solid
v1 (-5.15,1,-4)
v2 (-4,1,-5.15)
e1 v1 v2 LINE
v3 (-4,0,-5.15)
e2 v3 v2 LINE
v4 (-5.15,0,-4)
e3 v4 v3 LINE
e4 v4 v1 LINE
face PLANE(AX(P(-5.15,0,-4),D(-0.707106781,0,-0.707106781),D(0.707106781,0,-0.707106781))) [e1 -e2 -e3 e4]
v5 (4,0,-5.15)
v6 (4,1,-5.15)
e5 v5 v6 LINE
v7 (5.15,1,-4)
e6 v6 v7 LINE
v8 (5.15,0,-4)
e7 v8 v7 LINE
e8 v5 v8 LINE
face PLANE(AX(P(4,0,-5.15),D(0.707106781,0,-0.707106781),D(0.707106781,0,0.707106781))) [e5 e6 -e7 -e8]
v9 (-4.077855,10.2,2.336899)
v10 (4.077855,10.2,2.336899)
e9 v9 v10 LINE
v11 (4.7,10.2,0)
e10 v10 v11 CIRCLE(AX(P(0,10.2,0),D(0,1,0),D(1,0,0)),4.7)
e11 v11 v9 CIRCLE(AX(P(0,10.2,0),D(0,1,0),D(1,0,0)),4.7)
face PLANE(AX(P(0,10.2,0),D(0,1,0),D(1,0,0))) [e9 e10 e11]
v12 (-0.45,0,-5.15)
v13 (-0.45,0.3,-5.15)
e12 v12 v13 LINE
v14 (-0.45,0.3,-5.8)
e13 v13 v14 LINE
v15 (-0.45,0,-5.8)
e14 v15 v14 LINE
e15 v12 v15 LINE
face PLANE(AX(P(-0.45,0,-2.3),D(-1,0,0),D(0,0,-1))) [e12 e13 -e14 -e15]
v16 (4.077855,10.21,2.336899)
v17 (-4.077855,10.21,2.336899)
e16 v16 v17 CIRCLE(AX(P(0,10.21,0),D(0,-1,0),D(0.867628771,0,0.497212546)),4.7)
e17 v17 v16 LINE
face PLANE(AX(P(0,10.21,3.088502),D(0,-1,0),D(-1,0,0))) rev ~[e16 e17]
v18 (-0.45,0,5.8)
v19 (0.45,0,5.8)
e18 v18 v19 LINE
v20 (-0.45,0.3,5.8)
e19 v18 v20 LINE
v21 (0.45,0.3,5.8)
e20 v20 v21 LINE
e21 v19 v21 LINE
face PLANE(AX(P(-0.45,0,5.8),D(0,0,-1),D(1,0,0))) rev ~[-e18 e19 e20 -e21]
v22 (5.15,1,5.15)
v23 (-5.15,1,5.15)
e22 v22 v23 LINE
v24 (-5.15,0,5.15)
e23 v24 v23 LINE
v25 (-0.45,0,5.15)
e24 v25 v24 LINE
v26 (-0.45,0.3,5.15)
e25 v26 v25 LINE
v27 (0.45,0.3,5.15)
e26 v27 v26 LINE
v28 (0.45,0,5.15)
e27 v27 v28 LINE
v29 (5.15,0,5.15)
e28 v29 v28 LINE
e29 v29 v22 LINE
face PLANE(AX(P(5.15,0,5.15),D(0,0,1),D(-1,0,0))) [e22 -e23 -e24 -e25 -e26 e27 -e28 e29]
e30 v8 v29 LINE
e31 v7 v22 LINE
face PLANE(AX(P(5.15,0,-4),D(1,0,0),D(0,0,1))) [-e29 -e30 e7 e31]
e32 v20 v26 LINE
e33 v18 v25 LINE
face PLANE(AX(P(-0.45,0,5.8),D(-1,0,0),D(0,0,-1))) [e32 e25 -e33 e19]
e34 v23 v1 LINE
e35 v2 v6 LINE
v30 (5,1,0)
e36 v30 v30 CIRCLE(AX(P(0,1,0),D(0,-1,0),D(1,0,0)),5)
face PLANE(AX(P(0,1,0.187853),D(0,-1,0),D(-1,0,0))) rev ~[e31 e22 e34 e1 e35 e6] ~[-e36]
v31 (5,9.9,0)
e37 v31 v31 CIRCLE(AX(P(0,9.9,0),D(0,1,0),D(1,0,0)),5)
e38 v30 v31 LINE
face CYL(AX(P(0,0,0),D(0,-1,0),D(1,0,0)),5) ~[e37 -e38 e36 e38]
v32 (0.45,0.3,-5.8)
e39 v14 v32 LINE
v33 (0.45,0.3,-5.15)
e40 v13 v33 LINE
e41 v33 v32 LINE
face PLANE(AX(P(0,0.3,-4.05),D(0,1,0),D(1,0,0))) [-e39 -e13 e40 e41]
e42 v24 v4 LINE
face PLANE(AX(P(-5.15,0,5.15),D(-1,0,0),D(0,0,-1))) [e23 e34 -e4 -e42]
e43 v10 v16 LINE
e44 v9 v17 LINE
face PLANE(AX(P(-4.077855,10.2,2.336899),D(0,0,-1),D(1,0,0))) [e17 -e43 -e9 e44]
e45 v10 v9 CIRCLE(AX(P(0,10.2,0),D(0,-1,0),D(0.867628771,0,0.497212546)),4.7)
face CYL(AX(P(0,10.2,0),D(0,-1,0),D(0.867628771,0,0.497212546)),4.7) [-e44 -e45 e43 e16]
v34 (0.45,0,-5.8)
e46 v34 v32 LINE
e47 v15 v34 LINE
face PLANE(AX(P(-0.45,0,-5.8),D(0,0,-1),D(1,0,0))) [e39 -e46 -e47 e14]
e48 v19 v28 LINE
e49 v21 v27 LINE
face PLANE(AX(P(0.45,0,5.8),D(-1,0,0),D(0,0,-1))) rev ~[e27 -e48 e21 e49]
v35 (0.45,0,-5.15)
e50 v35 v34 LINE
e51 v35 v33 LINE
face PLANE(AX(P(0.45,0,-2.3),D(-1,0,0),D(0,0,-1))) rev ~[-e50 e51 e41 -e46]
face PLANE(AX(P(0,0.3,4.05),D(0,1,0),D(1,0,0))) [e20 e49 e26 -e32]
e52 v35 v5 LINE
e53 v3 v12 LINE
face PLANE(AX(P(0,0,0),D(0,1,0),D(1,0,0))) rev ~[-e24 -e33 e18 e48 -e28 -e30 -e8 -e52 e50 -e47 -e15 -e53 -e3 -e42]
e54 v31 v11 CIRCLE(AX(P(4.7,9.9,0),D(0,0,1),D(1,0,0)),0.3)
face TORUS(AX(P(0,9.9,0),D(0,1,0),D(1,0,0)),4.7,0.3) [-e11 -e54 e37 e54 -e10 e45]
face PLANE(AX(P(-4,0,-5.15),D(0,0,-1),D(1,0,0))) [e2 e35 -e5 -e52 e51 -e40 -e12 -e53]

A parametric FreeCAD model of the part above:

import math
import FreeCAD as App
import Part
import Sketcher


def edges_at(feature, points):
    """Names of the edges that pass closest to the given points."""
    edges = feature.Shape.Edges
    near = lambda p: min(range(len(edges)), key=lambda i: edges[i].distToShape(Part.Vertex(*p))[0])
    return sorted({f"Edge{near(p) + 1}" for p in points})


def add_polygon(sketch, points):
    """Adds a closed chain of lines whose ends are joined by coincident constraints."""
    first, n = sketch.GeometryCount, len(points)
    for a, b in zip(points, points[1:] + points[:1]):
        sketch.addGeometry(Part.LineSegment(App.Vector(*a, 0), App.Vector(*b, 0)), False)
    for i in range(n):
        sketch.addConstraint(Sketcher.Constraint("Coincident", first + i, 2, first + (i + 1) % n, 1))

doc = App.newDocument("Part")
body = doc.addObject("PartDesign::Body", "Body")

sketch1 = body.newObject("Sketcher::SketchObject", "Sketch")
sketch1.AttachmentSupport = (doc.getObject("XZ_Plane"), [""])
sketch1.MapMode = "FlatFace"
add_polygon(sketch1, [(-5.2, 5.2), (5.2, 5.2), (5.2, -4), (4, -5.2), (-4, -5.2), (-5.2, -4)])
sketch1.addConstraint([
    Sketcher.Constraint("Horizontal", 0),
    Sketcher.Constraint("Vertical", 1),
    Sketcher.Constraint("Horizontal", 3),
    Sketcher.Constraint("Vertical", 5),
    Sketcher.Constraint("Symmetric", 1, 2, 4, 2, -2),
    Sketcher.Constraint("Perpendicular", 2, 4),
    Sketcher.Constraint("Equal", 2, 4),
    Sketcher.Constraint("DistanceX", 3, 2, 3, 1, 8.0),
    Sketcher.Constraint("DistanceX", 0, 1, 0, 2, 10.3),
    Sketcher.Constraint("DistanceY", 1, 2, -1, 1, 4.0),
    Sketcher.Constraint("DistanceY", 1, 2, 1, 1, 9.15),
])
pad1 = body.newObject("PartDesign::Pad", "Pad")
pad1.Profile = sketch1
pad1.Length = 1
pad1.Reversed = True

sketch2 = body.newObject("Sketcher::SketchObject", "Sketch001")
sketch2.AttachmentSupport = (doc.getObject("XZ_Plane"), [""])
sketch2.MapMode = "FlatFace"
sketch2.addGeometry(Part.Circle(App.Vector(0, 0, 0), App.Vector(0, 0, 1), 5), False)
sketch2.addConstraint([
    Sketcher.Constraint("Coincident", 0, 3, -1, 1),
    Sketcher.Constraint("Diameter", 0, 10.0),
])
pad2 = body.newObject("PartDesign::Pad", "Pad001")
pad2.Profile = sketch2
pad2.Length = 10.2
pad2.Reversed = True
doc.recompute()

fillet = body.newObject("PartDesign::Fillet", "Fillet")
fillet.Base = (pad2, edges_at(pad2, [(-5, 10.2, 0)]))
fillet.Radius = 0.3

sketch3 = body.newObject("Sketcher::SketchObject", "Sketch002")
sketch3.AttachmentSupport = (doc.getObject("XZ_Plane"), [""])
sketch3.MapMode = "FlatFace"
add_polygon(sketch3, [(-0.5, -5.8), (-0.5, -2.3), (0.5, -2.3), (0.5, -5.8)])
add_polygon(sketch3, [(-0.5, 2.3), (-0.5, 5.8), (0.5, 5.8), (0.5, 2.3)])
sketch3.addConstraint([
    Sketcher.Constraint("Vertical", 0),
    Sketcher.Constraint("Horizontal", 1),
    Sketcher.Constraint("Vertical", 2),
    Sketcher.Constraint("Horizontal", 3),
    Sketcher.Constraint("Vertical", 4),
    Sketcher.Constraint("Horizontal", 5),
    Sketcher.Constraint("Vertical", 6),
    Sketcher.Constraint("Horizontal", 7),
    Sketcher.Constraint("Symmetric", 2, 2, 4, 2, -1, 1),
    Sketcher.Constraint("Symmetric", 0, 2, 6, 2, -1, 1),
    Sketcher.Constraint("Vertical", 3, 2, 4, 2),
    Sketcher.Constraint("DistanceX", 1, 1, 1, 2, 0.9),
    Sketcher.Constraint("DistanceY", 0, 1, 0, 2, 3.5),
    Sketcher.Constraint("DistanceY", 0, 2, -1, 1, 2.3),
])
pad3 = body.newObject("PartDesign::Pad", "Pad002")
pad3.Profile = sketch3
pad3.Length = 0.3
pad3.Reversed = True

sketch4 = body.newObject("Sketcher::SketchObject", "Sketch003")
sketch4.AttachmentSupport = (doc.getObject("XZ_Plane"), [""])
sketch4.MapMode = "FlatFace"
sketch4.AttachmentOffset = App.Placement(App.Vector(0, 0, -10.2), App.Rotation())
sketch4.addGeometry([
    Part.LineSegment(App.Vector(4.1, 2.3, 0), App.Vector(-4.1, 2.3, 0)),
    Part.ArcOfCircle(Part.Circle(App.Vector(0, 0, 0), App.Vector(0, 0, 1), 4.7), math.radians(30), math.radians(150)),
], False)
sketch4.addConstraint([
    Sketcher.Constraint("Coincident", 0, 1, 1, 1),
    Sketcher.Constraint("Coincident", 1, 2, 0, 2),
    Sketcher.Constraint("Horizontal", 0),
    Sketcher.Constraint("Coincident", 1, 3, -1, 1),
    Sketcher.Constraint("Radius", 1, 4.7),
    Sketcher.Constraint("DistanceX", 0, 2, 0, 1, 8.15571),
])
pad4 = body.newObject("PartDesign::Pad", "Pad003")
pad4.Profile = sketch4
pad4.Length = 0.01
pad4.Reversed = True

doc.recompute()
